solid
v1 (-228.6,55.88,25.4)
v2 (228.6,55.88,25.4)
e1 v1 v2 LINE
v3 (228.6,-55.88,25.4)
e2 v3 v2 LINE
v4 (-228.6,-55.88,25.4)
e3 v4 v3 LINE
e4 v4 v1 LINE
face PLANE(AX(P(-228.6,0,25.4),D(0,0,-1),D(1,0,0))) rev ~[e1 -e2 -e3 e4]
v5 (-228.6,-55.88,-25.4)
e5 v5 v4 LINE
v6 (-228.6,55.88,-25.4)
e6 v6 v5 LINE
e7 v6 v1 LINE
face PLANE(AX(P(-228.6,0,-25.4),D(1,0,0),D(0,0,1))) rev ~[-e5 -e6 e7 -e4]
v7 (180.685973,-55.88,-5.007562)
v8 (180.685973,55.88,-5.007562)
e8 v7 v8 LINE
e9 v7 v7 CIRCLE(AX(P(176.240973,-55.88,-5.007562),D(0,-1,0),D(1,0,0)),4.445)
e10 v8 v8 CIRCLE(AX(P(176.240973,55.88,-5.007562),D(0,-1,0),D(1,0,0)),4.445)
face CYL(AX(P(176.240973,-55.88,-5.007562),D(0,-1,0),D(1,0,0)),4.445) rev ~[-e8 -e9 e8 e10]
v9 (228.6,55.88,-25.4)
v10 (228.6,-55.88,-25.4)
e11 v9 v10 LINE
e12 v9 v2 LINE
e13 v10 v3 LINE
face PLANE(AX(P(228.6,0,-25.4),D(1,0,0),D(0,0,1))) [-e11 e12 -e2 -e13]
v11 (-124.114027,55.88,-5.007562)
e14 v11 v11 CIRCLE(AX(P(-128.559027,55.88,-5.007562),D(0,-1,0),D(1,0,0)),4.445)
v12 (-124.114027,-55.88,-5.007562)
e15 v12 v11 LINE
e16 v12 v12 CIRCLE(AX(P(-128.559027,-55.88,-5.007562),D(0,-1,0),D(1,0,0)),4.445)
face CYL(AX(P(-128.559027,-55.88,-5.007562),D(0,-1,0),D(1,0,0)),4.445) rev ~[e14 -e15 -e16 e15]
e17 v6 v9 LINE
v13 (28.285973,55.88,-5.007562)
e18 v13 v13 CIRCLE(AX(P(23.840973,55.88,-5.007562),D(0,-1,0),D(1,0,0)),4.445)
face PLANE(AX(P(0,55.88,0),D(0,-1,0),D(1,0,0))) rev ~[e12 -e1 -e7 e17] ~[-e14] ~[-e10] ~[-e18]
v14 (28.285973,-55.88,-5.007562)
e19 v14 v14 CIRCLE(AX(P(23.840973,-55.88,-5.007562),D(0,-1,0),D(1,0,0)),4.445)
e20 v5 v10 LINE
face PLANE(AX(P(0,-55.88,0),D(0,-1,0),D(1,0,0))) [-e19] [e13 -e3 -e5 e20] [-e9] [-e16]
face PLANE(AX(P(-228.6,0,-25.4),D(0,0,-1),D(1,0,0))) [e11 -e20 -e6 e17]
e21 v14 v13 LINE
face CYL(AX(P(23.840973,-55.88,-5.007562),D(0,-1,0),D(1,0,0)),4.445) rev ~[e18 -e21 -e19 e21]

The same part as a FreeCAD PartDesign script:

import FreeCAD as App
import Part
import Sketcher
Q = App.Units.Quantity

doc = App.newDocument("Part")
body = doc.addObject("PartDesign::Body", "Body")

sketch1 = body.newObject("Sketcher::SketchObject", "Sketch")
sketch1.AttachmentSupport = (doc.getObject("XZ_Plane"), [""])
sketch1.MapMode = "FlatFace"
sketch1.addGeometry(Part.LineSegment(App.Vector(-229, 25, 0), App.Vector(-229, -25, 0)), False)
sketch1.addGeometry(Part.LineSegment(App.Vector(-229, -25, 0), App.Vector(229, -25, 0)), False)
sketch1.addGeometry(Part.LineSegment(App.Vector(229, -25, 0), App.Vector(229, 25, 0)), False)
sketch1.addGeometry(Part.LineSegment(App.Vector(229, 25, 0), App.Vector(-229, 25, 0)), False)
sketch1.addConstraint(Sketcher.Constraint("Coincident", 0, 2, 1, 1))
sketch1.addConstraint(Sketcher.Constraint("Coincident", 1, 2, 2, 1))
sketch1.addConstraint(Sketcher.Constraint("Coincident", 2, 2, 3, 1))
sketch1.addConstraint(Sketcher.Constraint("Coincident", 3, 2, 0, 1))
sketch1.addConstraint(Sketcher.Constraint("Vertical", 0))
sketch1.addConstraint(Sketcher.Constraint("Horizontal", 1))
sketch1.addConstraint(Sketcher.Constraint("Vertical", 2))
sketch1.addConstraint(Sketcher.Constraint("Horizontal", 3))
sketch1.addConstraint(Sketcher.Constraint("Symmetric", 0, 2, 2, 2, -1, 1))
sketch1.addConstraint(Sketcher.Constraint("DistanceX", 1, 1, 1, 2, Q("18 in")))
sketch1.addConstraint(Sketcher.Constraint("DistanceY", 0, 2, 0, 1, Q("2 in")))
pad1 = body.newObject("PartDesign::Pad", "Pad")
pad1.Profile = sketch1
pad1.Length = Q("4.4 in")
pad1.Midplane = True

sketch2 = body.newObject("Sketcher::SketchObject", "Sketch001")
sketch2.AttachmentSupport = (doc.getObject("XZ_Plane"), [""])
sketch2.MapMode = "FlatFace"
sketch2.AttachmentOffset = App.Placement(App.Vector(0, 0, 2.2 * 25.4), App.Rotation())
sketch2.addGeometry(Part.Circle(App.Vector(-128.6, -5, 0), App.Vector(0, 0, 1), 4.4), False)
sketch2.addGeometry(Part.Circle(App.Vector(23.8, -5, 0), App.Vector(0, 0, 1), 4.4), False)
sketch2.addGeometry(Part.Circle(App.Vector(176.2, -5, 0), App.Vector(0, 0, 1), 4.4), False)
sketch2.addConstraint(Sketcher.Constraint("Equal", 0, 1))
sketch2.addConstraint(Sketcher.Constraint("Equal", 1, 2))
sketch2.addConstraint(Sketcher.Constraint("Horizontal", 0, 3, 1, 3))
sketch2.addConstraint(Sketcher.Constraint("Horizontal", 1, 3, 2, 3))
sketch2.addConstraint(Sketcher.Constraint("Diameter", 0, Q("0.35 in")))
sketch2.addConstraint(Sketcher.Constraint("DistanceX", 0, 3, 1, 3, Q("6 in")))
sketch2.addConstraint(Sketcher.Constraint("DistanceX", 1, 3, 2, 3, Q("6 in")))
sketch2.addConstraint(Sketcher.Constraint("DistanceX", 0, 3, -1, 1, 128.559027))
sketch2.addConstraint(Sketcher.Constraint("DistanceY", 0, 3, -1, 1, 5.007562))
pocket1 = body.newObject("PartDesign::Pocket", "Pocket")
pocket1.Profile = sketch2
pocket1.Type = "ThroughAll"

doc.recompute()
